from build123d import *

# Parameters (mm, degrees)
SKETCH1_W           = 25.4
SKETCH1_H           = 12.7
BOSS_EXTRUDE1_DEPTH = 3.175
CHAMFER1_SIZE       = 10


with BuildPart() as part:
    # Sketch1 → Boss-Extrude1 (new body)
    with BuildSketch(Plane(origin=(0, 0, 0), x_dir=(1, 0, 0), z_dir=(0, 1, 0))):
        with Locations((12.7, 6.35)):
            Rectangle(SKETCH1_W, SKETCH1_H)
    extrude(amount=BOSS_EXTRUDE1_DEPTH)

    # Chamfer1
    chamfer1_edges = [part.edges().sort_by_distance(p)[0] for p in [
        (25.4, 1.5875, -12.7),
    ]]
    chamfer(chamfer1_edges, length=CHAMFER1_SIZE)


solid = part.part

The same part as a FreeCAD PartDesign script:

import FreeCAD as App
import Part
import Sketcher
from FreeCAD import Vector
Q = App.Units.Quantity


def edges_at(feature, points):
    """Names of the edges that pass closest to the given points."""
    edges = feature.Shape.Edges
    near = lambda p: min(range(len(edges)), key=lambda i: edges[i].distToShape(Part.Vertex(*p))[0])
    return sorted({f"Edge{near(p) + 1}" for p in points})

doc = App.newDocument("Part")
body = doc.addObject("PartDesign::Body", "Body")

sketch1 = body.newObject("Sketcher::SketchObject", "Sketch")
sketch1.AttachmentSupport = (doc.getObject("XZ_Plane"), [""])
sketch1.MapMode = "FlatFace"
sketch1.addGeometry([
    Part.LineSegment(Vector(0, -12.7, 0), Vector(0, 0, 0)),
    Part.LineSegment(Vector(0, 0, 0), Vector(25.4, 0, 0)),
    Part.LineSegment(Vector(25.4, 0, 0), Vector(25.4, -12.7, 0)),
    Part.LineSegment(Vector(25.4, -12.7, 0), Vector(0, -12.7, 0)),
], False)
sketch1.addConstraint([
    Sketcher.Constraint("Coincident", 0, 2, 1, 1),
    Sketcher.Constraint("Coincident", 1, 2, 2, 1),
    Sketcher.Constraint("Coincident", 2, 2, 3, 1),
    Sketcher.Constraint("Coincident", 3, 2, 0, 1),
    Sketcher.Constraint("Vertical", 0),
    Sketcher.Constraint("Horizontal", 1),
    Sketcher.Constraint("Vertical", 2),
    Sketcher.Constraint("Horizontal", 3),
    Sketcher.Constraint("Coincident", 0, 2, -1, 1),
    Sketcher.Constraint("DistanceX", 1, 1, 1, 2, Q("1 in")),
    Sketcher.Constraint("DistanceY", 0, 1, 0, 2, Q("0.5 in")),
])
pad1 = body.newObject("PartDesign::Pad", "Pad")
pad1.Profile = sketch1
pad1.Length = Q("0.125 in")
pad1.Reversed = True
doc.recompute()

chamfer = body.newObject("PartDesign::Chamfer", "Chamfer")
chamfer.Base = (pad1, edges_at(pad1, [(25.4, 1.587, -12.7)]))
chamfer.Size = 10

doc.recompute()
